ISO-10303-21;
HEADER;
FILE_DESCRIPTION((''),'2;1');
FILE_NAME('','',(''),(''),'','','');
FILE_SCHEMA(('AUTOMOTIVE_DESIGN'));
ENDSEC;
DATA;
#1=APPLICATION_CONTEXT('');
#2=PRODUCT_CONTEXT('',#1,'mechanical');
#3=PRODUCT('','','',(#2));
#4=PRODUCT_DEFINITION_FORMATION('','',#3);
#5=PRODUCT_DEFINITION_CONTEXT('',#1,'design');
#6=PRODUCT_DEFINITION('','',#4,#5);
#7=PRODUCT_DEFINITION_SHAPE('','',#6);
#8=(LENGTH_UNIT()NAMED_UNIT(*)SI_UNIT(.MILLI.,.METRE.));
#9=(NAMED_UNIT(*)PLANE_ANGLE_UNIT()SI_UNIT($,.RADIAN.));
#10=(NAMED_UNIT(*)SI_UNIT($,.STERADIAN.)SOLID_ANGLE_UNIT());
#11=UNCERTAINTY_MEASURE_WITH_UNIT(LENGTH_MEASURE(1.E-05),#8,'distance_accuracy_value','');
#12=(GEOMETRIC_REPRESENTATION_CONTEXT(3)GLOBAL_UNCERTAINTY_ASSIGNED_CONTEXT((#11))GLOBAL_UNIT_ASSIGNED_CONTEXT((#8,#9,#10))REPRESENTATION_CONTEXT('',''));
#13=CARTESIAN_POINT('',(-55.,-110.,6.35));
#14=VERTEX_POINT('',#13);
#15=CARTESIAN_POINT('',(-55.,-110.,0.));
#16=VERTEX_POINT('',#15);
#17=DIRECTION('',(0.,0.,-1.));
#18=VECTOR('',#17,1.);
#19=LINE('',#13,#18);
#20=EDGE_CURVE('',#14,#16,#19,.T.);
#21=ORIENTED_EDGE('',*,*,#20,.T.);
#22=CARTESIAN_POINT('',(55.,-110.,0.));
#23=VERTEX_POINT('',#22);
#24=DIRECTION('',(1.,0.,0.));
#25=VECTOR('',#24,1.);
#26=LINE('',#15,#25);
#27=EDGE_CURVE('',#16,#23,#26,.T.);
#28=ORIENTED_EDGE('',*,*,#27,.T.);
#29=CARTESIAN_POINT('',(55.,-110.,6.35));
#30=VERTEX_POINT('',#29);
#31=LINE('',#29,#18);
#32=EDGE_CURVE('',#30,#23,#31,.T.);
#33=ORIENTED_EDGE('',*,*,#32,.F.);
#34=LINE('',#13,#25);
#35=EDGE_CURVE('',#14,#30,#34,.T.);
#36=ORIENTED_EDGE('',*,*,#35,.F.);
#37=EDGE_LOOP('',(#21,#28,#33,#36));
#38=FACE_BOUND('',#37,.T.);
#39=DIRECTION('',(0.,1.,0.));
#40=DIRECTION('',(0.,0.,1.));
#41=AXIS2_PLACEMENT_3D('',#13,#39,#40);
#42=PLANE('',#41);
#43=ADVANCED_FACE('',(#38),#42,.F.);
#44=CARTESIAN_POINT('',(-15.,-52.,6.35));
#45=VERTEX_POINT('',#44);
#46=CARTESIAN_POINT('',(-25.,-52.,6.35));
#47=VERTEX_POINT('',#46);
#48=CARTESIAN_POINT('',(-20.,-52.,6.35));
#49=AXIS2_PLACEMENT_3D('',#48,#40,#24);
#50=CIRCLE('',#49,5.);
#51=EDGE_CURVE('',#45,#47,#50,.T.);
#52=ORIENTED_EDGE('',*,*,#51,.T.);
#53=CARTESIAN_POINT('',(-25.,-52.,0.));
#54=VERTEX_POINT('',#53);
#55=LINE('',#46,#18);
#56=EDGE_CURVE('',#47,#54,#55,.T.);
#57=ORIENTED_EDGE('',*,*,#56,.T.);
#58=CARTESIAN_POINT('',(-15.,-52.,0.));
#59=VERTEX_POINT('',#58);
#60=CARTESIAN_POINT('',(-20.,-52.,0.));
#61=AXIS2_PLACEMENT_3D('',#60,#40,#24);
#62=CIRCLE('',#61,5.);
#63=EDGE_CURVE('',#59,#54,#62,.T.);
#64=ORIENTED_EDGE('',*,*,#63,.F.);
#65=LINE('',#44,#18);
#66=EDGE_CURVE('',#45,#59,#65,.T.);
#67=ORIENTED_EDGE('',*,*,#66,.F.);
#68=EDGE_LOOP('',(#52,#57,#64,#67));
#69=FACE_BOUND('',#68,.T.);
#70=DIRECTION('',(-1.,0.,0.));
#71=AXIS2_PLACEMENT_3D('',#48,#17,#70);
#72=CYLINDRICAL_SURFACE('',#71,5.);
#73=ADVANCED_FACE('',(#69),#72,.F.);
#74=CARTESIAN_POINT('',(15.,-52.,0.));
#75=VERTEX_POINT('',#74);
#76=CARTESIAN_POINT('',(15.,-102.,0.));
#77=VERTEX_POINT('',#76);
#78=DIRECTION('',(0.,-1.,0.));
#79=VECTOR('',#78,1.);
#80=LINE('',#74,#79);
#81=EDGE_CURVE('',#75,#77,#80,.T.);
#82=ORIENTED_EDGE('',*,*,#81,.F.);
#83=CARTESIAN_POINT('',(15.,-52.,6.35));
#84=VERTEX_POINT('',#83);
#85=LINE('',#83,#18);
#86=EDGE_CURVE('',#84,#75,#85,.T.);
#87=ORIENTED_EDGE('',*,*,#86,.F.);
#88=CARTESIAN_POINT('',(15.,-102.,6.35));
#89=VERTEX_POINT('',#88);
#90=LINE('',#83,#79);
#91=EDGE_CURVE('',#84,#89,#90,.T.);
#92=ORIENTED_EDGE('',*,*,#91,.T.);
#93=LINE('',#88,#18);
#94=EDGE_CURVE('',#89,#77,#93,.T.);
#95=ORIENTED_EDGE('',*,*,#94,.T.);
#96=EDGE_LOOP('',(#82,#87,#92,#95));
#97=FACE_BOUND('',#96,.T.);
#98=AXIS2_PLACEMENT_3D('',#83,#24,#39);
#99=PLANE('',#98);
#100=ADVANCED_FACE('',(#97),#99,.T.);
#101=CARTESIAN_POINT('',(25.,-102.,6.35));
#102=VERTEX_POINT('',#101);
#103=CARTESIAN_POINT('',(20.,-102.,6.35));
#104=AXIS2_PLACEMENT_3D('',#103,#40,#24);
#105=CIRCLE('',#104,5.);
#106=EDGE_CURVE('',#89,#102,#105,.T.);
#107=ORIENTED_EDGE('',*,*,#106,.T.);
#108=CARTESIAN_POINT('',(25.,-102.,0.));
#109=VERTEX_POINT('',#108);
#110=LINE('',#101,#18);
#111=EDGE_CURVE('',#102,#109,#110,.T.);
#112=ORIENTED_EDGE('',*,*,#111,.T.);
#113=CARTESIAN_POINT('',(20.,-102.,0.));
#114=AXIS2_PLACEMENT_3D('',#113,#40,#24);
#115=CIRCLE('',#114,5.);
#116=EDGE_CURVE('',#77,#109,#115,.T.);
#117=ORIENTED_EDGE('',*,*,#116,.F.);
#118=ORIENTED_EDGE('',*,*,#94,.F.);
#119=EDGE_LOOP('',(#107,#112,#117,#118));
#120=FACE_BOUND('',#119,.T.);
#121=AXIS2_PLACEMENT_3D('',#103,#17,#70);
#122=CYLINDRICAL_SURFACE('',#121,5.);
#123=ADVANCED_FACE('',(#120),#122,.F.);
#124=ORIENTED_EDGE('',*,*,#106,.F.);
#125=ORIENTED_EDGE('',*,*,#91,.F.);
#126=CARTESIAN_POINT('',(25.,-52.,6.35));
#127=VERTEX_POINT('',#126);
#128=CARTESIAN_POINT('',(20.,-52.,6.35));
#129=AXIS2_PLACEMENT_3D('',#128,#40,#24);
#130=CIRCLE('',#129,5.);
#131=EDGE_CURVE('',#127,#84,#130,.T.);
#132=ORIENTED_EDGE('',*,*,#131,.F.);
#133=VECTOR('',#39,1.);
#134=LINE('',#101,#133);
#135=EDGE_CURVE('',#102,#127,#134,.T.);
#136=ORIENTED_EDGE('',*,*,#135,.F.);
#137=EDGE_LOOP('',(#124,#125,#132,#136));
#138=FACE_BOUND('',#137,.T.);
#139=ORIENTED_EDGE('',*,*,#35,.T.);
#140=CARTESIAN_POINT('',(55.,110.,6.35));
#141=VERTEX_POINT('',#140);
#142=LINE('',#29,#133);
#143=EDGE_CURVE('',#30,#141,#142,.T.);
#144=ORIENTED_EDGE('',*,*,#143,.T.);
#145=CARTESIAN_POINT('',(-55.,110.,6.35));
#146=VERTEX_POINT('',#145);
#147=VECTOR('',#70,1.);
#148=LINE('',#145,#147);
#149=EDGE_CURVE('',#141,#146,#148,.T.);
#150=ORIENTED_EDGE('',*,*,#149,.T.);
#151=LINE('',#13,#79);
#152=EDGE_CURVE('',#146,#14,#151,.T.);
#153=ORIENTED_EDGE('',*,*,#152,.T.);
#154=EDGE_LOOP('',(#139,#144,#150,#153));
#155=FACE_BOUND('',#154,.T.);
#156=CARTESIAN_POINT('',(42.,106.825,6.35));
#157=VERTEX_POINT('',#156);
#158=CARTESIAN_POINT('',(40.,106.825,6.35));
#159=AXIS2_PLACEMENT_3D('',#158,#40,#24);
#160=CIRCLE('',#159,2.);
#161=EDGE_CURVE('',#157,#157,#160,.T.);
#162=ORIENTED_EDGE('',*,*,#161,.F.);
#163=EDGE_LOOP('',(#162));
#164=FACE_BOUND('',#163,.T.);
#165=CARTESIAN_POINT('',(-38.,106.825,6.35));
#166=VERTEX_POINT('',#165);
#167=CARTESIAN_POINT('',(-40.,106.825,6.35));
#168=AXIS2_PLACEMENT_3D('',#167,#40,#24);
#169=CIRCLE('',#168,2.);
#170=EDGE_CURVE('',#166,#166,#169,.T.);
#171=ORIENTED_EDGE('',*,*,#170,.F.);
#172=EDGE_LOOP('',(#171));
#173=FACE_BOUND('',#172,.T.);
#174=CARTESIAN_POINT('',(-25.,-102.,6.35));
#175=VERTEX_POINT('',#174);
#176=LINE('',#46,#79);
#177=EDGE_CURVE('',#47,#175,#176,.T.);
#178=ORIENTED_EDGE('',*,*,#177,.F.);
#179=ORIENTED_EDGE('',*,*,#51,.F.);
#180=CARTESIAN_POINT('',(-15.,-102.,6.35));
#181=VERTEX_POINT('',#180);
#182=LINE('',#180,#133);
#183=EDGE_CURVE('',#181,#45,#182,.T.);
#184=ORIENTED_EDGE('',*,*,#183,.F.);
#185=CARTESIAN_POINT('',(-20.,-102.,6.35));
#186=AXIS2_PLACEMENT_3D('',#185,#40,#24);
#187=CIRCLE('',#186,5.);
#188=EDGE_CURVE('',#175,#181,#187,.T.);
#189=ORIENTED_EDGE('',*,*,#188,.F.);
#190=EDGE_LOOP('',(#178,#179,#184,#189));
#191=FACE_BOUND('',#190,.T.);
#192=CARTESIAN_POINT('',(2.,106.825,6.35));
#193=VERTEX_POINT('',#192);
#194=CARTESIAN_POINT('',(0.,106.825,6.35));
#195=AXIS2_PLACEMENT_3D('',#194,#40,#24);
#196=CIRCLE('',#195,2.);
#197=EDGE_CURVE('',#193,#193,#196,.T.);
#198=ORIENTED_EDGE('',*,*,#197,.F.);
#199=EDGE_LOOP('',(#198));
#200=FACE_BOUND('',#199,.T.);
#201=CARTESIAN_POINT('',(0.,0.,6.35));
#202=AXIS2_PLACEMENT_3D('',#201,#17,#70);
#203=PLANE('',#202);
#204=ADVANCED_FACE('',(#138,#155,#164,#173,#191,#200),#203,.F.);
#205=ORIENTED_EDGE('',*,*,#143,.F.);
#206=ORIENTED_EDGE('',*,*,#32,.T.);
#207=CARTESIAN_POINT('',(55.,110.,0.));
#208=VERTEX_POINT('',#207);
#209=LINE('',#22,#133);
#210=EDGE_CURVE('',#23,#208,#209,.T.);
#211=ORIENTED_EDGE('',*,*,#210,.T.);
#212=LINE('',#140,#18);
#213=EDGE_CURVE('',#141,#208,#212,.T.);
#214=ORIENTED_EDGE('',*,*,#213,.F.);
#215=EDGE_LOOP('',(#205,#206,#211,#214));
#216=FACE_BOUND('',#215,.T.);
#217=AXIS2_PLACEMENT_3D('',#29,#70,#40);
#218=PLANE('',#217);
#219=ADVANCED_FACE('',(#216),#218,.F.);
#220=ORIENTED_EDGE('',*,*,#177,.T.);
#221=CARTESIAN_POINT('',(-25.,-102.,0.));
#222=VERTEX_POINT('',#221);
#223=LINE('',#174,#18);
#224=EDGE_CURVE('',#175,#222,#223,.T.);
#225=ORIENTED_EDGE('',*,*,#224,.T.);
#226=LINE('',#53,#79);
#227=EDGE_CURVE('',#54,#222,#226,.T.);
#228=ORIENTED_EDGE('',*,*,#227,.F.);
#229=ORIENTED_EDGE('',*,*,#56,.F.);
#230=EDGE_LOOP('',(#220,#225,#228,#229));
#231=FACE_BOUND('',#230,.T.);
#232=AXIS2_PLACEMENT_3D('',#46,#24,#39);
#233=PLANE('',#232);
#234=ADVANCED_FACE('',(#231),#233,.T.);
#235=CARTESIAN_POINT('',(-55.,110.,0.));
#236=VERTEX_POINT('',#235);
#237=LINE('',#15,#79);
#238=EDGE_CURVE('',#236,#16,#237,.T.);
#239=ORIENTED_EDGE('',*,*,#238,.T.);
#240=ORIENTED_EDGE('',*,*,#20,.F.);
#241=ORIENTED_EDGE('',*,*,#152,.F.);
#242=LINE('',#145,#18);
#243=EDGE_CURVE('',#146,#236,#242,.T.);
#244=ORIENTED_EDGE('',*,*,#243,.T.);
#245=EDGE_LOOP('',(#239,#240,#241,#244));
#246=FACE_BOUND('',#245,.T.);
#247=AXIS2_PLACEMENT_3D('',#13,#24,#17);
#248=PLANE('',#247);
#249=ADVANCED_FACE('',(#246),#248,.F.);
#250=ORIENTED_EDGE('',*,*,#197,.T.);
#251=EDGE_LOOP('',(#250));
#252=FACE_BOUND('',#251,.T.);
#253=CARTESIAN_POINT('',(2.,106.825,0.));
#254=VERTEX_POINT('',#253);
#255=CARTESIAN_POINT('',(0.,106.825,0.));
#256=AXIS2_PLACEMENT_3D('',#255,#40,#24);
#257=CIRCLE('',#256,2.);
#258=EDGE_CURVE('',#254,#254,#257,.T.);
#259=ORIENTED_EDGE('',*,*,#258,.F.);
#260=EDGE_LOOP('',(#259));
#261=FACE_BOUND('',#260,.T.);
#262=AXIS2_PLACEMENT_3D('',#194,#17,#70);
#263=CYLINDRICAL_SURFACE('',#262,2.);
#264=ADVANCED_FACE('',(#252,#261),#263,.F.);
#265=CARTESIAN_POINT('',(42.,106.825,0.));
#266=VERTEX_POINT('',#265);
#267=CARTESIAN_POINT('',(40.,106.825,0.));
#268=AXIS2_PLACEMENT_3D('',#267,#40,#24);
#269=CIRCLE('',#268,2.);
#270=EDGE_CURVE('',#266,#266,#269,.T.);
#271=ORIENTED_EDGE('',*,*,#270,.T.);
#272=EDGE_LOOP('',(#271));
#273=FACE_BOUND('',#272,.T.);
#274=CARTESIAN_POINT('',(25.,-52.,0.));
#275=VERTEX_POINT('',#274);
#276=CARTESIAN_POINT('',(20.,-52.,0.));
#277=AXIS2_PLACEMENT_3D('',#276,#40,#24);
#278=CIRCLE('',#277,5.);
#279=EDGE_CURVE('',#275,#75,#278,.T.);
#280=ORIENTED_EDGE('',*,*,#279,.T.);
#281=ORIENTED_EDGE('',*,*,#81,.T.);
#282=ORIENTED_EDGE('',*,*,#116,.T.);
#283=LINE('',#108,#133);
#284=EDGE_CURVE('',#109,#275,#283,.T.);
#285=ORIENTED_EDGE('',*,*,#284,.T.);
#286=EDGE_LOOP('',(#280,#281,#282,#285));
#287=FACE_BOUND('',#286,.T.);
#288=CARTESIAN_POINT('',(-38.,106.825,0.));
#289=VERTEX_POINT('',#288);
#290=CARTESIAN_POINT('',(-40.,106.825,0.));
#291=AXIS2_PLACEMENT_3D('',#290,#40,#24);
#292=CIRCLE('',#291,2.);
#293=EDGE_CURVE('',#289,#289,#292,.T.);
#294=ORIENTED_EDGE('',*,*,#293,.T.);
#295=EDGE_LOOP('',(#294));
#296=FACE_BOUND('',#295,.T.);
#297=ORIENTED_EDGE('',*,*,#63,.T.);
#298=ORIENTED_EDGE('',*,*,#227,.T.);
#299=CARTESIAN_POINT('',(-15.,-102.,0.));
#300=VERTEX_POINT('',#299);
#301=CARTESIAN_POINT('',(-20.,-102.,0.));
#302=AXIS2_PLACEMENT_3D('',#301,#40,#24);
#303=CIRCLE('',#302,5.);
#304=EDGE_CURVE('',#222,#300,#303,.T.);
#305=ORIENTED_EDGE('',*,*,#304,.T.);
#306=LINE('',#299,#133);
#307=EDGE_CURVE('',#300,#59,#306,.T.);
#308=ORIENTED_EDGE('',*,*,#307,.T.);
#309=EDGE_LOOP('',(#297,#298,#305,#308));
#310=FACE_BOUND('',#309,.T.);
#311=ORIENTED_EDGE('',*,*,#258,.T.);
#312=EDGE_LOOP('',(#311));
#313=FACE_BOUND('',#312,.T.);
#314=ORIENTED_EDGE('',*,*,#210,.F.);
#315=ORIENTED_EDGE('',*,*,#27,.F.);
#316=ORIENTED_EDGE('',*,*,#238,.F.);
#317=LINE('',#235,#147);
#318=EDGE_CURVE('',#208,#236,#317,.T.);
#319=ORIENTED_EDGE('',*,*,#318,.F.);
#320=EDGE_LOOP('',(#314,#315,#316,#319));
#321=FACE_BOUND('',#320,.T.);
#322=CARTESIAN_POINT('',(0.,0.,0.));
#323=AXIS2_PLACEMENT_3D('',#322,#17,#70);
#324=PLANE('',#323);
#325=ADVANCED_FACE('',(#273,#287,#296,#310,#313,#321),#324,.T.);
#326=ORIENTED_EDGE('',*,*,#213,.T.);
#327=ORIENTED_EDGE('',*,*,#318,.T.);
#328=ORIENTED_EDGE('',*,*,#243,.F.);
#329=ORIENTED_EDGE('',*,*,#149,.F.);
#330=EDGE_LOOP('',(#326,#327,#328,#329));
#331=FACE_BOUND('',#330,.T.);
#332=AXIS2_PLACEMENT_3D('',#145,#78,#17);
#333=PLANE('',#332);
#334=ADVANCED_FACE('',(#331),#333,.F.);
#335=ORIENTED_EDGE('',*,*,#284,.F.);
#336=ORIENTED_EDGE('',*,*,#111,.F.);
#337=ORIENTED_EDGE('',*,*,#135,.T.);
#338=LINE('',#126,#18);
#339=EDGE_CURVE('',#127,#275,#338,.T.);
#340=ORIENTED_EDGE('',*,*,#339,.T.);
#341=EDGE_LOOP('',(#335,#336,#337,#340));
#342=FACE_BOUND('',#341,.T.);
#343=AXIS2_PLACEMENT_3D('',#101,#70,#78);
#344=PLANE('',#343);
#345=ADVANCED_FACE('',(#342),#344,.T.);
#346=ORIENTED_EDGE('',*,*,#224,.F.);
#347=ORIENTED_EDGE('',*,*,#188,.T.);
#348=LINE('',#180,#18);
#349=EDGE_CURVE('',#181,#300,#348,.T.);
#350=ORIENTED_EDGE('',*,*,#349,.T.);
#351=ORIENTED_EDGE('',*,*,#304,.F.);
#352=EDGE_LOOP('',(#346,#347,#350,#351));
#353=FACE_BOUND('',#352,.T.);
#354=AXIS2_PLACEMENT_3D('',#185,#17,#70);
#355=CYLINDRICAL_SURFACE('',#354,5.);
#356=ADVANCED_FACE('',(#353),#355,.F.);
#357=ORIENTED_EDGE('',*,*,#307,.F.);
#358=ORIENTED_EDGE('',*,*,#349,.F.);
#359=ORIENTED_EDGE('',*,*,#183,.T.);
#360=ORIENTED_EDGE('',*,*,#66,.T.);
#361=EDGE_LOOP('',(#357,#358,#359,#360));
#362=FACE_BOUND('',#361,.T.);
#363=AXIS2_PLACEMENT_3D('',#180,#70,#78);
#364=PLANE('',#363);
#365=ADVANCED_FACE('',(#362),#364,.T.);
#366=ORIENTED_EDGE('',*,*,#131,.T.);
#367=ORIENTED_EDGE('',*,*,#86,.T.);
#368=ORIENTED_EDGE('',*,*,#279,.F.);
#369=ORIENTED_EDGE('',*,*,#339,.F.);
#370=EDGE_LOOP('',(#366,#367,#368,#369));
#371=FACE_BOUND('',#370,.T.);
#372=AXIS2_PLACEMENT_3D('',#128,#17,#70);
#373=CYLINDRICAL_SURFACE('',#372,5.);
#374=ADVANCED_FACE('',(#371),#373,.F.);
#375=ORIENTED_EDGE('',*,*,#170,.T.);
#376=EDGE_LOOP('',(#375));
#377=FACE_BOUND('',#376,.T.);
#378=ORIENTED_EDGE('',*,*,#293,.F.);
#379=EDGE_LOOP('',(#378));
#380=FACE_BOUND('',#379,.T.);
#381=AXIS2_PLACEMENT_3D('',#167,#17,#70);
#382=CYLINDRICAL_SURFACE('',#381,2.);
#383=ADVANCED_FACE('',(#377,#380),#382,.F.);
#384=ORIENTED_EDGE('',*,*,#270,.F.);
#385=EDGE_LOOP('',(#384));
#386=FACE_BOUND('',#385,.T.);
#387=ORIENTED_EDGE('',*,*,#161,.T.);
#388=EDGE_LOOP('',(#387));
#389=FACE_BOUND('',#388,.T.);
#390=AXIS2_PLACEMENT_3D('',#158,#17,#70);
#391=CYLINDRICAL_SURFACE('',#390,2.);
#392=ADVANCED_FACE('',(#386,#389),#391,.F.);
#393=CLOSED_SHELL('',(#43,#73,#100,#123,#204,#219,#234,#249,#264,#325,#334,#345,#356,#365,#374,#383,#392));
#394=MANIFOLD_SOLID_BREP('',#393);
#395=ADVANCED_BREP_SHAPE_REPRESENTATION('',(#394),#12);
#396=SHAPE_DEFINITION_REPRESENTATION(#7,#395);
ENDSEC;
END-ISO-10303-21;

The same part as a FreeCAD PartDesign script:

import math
import FreeCAD as App
import Part
import Sketcher
from FreeCAD import Vector
Q = App.Units.Quantity


def add_polygon(sketch, points):
    """Adds a closed chain of lines whose ends are joined by coincident constraints."""
    first, n = sketch.GeometryCount, len(points)
    for a, b in zip(points, points[1:] + points[:1]):
        sketch.addGeometry(Part.LineSegment(App.Vector(*a, 0), App.Vector(*b, 0)), False)
    for i in range(n):
        sketch.addConstraint(Sketcher.Constraint("Coincident", first + i, 2, first + (i + 1) % n, 1))

doc = App.newDocument("Part")
body = doc.addObject("PartDesign::Body", "Body")

# Sketch on XY plane
sketch1 = body.newObject("Sketcher::SketchObject", "Sketch")
sketch1.AttachmentSupport = (doc.getObject("XY_Plane"), [""])
sketch1.MapMode = "FlatFace"
add_polygon(sketch1, [(-55, 110), (-55, -110), (55, -110), (55, 110)])  # lines 0-3
sketch1.addConstraint([
    Sketcher.Constraint("Vertical", 0),
    Sketcher.Constraint("Horizontal", 1),
    Sketcher.Constraint("Vertical", 2),
    Sketcher.Constraint("Horizontal", 3),
    Sketcher.Constraint("Symmetric", 0, 2, 2, 2, -1, 1),
    Sketcher.Constraint("DistanceX", 1, 1, 1, 2, Q("110 mm")),
    Sketcher.Constraint("DistanceY", 0, 2, 0, 1, Q("220 mm")),
])
pad1 = body.newObject("PartDesign::Pad", "Pad")
pad1.Profile = sketch1
pad1.Length = 6.35

# Sketch on XY plane
sketch2 = body.newObject("Sketcher::SketchObject", "Sketch001")
sketch2.AttachmentSupport = (doc.getObject("XY_Plane"), [""])
sketch2.MapMode = "FlatFace"
sketch2.addGeometry([
    Part.Circle(Vector(40, 106.8, 0), Vector(0, 0, 1), 2),  # 0
    Part.Circle(Vector(-40, 106.8, 0), Vector(0, 0, 1), 2),  # 1
    Part.Circle(Vector(0, 106.8, 0), Vector(0, 0, 1), 2),  # 2
    Part.LineSegment(Vector(-25, -52, 0), Vector(-25, -102, 0)),  # 3
    Part.ArcOfCircle(Part.Circle(Vector(-20, -102, 0), Vector(0, 0, 1), 5), math.radians(180), math.radians(360)),  # 4
    Part.LineSegment(Vector(-15, -102, 0), Vector(-15, -52, 0)),  # 5
    Part.ArcOfCircle(Part.Circle(Vector(-20, -52, 0), Vector(0, 0, 1), 5), math.radians(0), math.radians(180)),  # 6
    Part.LineSegment(Vector(15, -52, 0), Vector(15, -102, 0)),  # 7
    Part.ArcOfCircle(Part.Circle(Vector(20, -102, 0), Vector(0, 0, 1), 5), math.radians(180), math.radians(360)),  # 8
    Part.LineSegment(Vector(25, -102, 0), Vector(25, -52, 0)),  # 9
    Part.ArcOfCircle(Part.Circle(Vector(20, -52, 0), Vector(0, 0, 1), 5), math.radians(0), math.radians(180)),  # 10
], False)
sketch2.addConstraint([
    Sketcher.Constraint("Tangent", 3, 2, 4, 1),
    Sketcher.Constraint("Tangent", 4, 2, 5, 1),
    Sketcher.Constraint("Tangent", 5, 2, 6, 1),
    Sketcher.Constraint("Tangent", 6, 2, 3, 1),
    Sketcher.Constraint("Tangent", 7, 2, 8, 1),
    Sketcher.Constraint("Tangent", 8, 2, 9, 1),
    Sketcher.Constraint("Tangent", 9, 2, 10, 1),
    Sketcher.Constraint("Tangent", 10, 2, 7, 1),
    Sketcher.Constraint("Vertical", 3),
    Sketcher.Constraint("Vertical", 5),
    Sketcher.Constraint("Vertical", 7),
    Sketcher.Constraint("Vertical", 9),
    Sketcher.Constraint("Equal", 0, 1),
    Sketcher.Constraint("Equal", 1, 2),
    Sketcher.Constraint("Equal", 6, 8),
    Sketcher.Constraint("Symmetric", 0, 3, 1, 3, -2),
    Sketcher.Constraint("Symmetric", 4, 3, 8, 3, -2),
    Sketcher.Constraint("PointOnObject", 2, 3, -2),
    Sketcher.Constraint("Horizontal", 1, 3, 2, 3),
    Sketcher.Constraint("Horizontal", 6, 3, 10, 3),
    Sketcher.Constraint("Diameter", 0, Q("4 mm")),
    Sketcher.Constraint("Radius", 4, Q("5 mm")),
    Sketcher.Constraint("DistanceY", 3, 2, 3, 1, Q("50 mm")),
    Sketcher.Constraint("DistanceX", -1, 1, 0, 3, Q("40 mm")),
    Sketcher.Constraint("DistanceX", 4, 3, -1, 1, Q("20 mm")),
    Sketcher.Constraint("DistanceY", 4, 3, -1, 1, Q("102 mm")),
    Sketcher.Constraint("DistanceY", -1, 1, 0, 3, Q("106.825 mm")),
])
pocket1 = body.newObject("PartDesign::Pocket", "Pocket")
pocket1.Profile = sketch2
pocket1.Type = "ThroughAll"
pocket1.Reversed = True

doc.recompute()
